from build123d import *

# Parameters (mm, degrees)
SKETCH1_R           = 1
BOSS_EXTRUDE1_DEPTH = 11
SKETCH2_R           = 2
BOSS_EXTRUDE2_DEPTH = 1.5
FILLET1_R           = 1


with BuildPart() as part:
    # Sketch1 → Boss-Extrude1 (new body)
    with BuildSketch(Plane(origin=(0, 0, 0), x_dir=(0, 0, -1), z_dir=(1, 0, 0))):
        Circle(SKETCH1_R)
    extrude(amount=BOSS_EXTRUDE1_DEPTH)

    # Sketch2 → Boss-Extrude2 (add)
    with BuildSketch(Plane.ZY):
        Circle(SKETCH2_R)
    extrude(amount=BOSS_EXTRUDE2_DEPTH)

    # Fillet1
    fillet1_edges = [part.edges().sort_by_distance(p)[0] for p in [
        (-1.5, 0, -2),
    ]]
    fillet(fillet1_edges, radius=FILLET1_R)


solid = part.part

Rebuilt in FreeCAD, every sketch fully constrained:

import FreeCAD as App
import Part
import Sketcher

V = App.Vector
Q = App.Units.Quantity


def edges_at(feature, points):
    """Names of the edges that pass closest to the given points."""
    edges = feature.Shape.Edges
    near = lambda p: min(range(len(edges)), key=lambda i: edges[i].distToShape(Part.Vertex(*p))[0])
    return sorted({f"Edge{near(p) + 1}" for p in points})

doc = App.newDocument("Part")
body = doc.addObject("PartDesign::Body", "Body")

# Sketch on YZ plane
sketch1 = body.newObject("Sketcher::SketchObject", "Sketch")
sketch1.AttachmentSupport = (doc.getObject("YZ_Plane"), [""])
sketch1.MapMode = "FlatFace"
sketch1.addGeometry(Part.Circle(V(0, 0, 0), V(0, 0, 1), 1), False)
sketch1.addConstraint([
    Sketcher.Constraint("Coincident", 0, 3, -1, 1),
    Sketcher.Constraint("Diameter", 0, Q("2 mm")),
])
pad1 = body.newObject("PartDesign::Pad", "Pad")
pad1.Profile = sketch1
pad1.Length = 11

# Sketch on YZ plane
sketch2 = body.newObject("Sketcher::SketchObject", "Sketch001")
sketch2.AttachmentSupport = (doc.getObject("YZ_Plane"), [""])
sketch2.MapMode = "FlatFace"
sketch2.addGeometry(Part.Circle(V(0, 0, 0), V(0, 0, 1), 2), False)
sketch2.addConstraint([
    Sketcher.Constraint("Coincident", 0, 3, -1, 1),
    Sketcher.Constraint("Diameter", 0, Q("4 mm")),
])
pad2 = body.newObject("PartDesign::Pad", "Pad001")
pad2.Profile = sketch2
pad2.Length = 1.5
pad2.Reversed = True
doc.recompute()

fillet = body.newObject("PartDesign::Fillet", "Fillet")
fillet.Base = (pad2, edges_at(pad2, [(-1.5, 0, -2)]))
fillet.Radius = 1

doc.recompute()
